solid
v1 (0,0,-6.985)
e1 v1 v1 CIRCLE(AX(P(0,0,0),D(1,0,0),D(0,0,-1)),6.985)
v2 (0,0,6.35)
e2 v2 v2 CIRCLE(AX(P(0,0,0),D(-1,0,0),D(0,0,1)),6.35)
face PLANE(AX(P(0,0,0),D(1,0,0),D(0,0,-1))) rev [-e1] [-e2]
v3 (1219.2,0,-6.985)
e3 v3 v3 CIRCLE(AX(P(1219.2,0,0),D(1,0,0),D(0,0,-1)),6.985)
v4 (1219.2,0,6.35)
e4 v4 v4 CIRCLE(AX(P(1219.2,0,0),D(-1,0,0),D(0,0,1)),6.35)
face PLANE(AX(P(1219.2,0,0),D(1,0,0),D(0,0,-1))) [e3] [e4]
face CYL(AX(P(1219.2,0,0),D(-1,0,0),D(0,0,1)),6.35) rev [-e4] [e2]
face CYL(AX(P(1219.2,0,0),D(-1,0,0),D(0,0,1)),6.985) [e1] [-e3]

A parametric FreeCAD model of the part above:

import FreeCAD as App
import Part
import Sketcher

V = App.Vector
Q = App.Units.Quantity

doc = App.newDocument("Part")
body = doc.addObject("PartDesign::Body", "Body")

# Sketch on YZ plane
sketch1 = body.newObject("Sketcher::SketchObject", "Sketch")
sketch1.AttachmentSupport = (doc.getObject("YZ_Plane"), [""])
sketch1.MapMode = "FlatFace"
sketch1.addGeometry(Part.Circle(V(0, 0, 0), V(0, 0, 1), 7), False)
sketch1.addConstraint([
    Sketcher.Constraint("Coincident", 0, 3, -1, 1),
    Sketcher.Constraint("Diameter", 0, Q("0.55 in")),
])
pad1 = body.newObject("PartDesign::Pad", "Pad")
pad1.Profile = sketch1
pad1.Length = Q("48 in")

# Sketch on YZ plane
sketch2 = body.newObject("Sketcher::SketchObject", "Sketch001")
sketch2.AttachmentSupport = (doc.getObject("YZ_Plane"), [""])
sketch2.MapMode = "FlatFace"
sketch2.addGeometry(Part.Circle(V(0, 0, 0), V(0, 0, 1), 6), False)
sketch2.addConstraint([
    Sketcher.Constraint("Coincident", 0, 3, -1, 1),
    Sketcher.Constraint("Diameter", 0, Q("0.5 in")),
])
pocket1 = body.newObject("PartDesign::Pocket", "Pocket")
pocket1.Profile = sketch2
pocket1.Type = "ThroughAll"
pocket1.Reversed = True

doc.recompute()
